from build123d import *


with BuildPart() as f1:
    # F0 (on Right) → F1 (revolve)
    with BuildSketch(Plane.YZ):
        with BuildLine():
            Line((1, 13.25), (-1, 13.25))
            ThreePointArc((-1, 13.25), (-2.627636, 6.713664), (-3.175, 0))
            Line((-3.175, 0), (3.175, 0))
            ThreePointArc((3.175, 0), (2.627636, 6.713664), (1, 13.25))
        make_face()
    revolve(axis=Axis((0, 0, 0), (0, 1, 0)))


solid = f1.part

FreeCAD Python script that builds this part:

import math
import FreeCAD as App
import Part
import Sketcher
Q = App.Units.Quantity

doc = App.newDocument("Part")
body = doc.addObject("PartDesign::Body", "Body")

# Sketch on YZ plane
sketch1 = body.newObject("Sketcher::SketchObject", "Sketch")
sketch1.AttachmentSupport = (doc.getObject("YZ_Plane"), [""])
sketch1.MapMode = "FlatFace"
sketch1.addGeometry(Part.LineSegment(App.Vector(1, 13.25, 0), App.Vector(-1, 13.25, 0)), False)
sketch1.addGeometry(Part.ArcOfCircle(Part.Circle(App.Vector(38.271665, 0.000005, 0), App.Vector(0, 0, 1), 41.446665), math.radians(161.355952), math.radians(180.000007)), False)
sketch1.addGeometry(Part.LineSegment(App.Vector(-3.175, 0, 0), App.Vector(3.175, 0, 0)), False)
sketch1.addGeometry(Part.ArcOfCircle(Part.Circle(App.Vector(-38.271665, 0.000005, 0), App.Vector(0, 0, 1), 41.446665), math.radians(-0.000007), math.radians(18.644048)), False)
sketch1.addConstraint(Sketcher.Constraint("Coincident", 0, 2, 1, 1))
sketch1.addConstraint(Sketcher.Constraint("Coincident", 1, 2, 2, 1))
sketch1.addConstraint(Sketcher.Constraint("Coincident", 2, 2, 3, 1))
sketch1.addConstraint(Sketcher.Constraint("Coincident", 3, 2, 0, 1))
sketch1.addConstraint(Sketcher.Constraint("Horizontal", 0))
sketch1.addConstraint(Sketcher.Constraint("Horizontal", 2))
sketch1.addConstraint(Sketcher.Constraint("Equal", 1, 3))
sketch1.addConstraint(Sketcher.Constraint("Symmetric", 1, 3, 3, 3, -1, 1))
sketch1.addConstraint(Sketcher.Constraint("PointOnObject", 1, 2, -1))
sketch1.addConstraint(Sketcher.Constraint("Horizontal", 1, 3, 3, 3))
sketch1.addConstraint(Sketcher.Constraint("DistanceX", 0, 2, 0, 1, Q("2 mm")))
sketch1.addConstraint(Sketcher.Constraint("DistanceX", 2, 1, 2, 2, Q("6.35 mm")))
sketch1.addConstraint(Sketcher.Constraint("DistanceY", -1, 1, 0, 2, Q("13.25 mm")))
revolution = body.newObject("PartDesign::Revolution", "Revolution")
revolution.Profile = sketch1
revolution.ReferenceAxis = (sketch1, ["H_Axis"])
revolution.Angle = 360

doc.recompute()
